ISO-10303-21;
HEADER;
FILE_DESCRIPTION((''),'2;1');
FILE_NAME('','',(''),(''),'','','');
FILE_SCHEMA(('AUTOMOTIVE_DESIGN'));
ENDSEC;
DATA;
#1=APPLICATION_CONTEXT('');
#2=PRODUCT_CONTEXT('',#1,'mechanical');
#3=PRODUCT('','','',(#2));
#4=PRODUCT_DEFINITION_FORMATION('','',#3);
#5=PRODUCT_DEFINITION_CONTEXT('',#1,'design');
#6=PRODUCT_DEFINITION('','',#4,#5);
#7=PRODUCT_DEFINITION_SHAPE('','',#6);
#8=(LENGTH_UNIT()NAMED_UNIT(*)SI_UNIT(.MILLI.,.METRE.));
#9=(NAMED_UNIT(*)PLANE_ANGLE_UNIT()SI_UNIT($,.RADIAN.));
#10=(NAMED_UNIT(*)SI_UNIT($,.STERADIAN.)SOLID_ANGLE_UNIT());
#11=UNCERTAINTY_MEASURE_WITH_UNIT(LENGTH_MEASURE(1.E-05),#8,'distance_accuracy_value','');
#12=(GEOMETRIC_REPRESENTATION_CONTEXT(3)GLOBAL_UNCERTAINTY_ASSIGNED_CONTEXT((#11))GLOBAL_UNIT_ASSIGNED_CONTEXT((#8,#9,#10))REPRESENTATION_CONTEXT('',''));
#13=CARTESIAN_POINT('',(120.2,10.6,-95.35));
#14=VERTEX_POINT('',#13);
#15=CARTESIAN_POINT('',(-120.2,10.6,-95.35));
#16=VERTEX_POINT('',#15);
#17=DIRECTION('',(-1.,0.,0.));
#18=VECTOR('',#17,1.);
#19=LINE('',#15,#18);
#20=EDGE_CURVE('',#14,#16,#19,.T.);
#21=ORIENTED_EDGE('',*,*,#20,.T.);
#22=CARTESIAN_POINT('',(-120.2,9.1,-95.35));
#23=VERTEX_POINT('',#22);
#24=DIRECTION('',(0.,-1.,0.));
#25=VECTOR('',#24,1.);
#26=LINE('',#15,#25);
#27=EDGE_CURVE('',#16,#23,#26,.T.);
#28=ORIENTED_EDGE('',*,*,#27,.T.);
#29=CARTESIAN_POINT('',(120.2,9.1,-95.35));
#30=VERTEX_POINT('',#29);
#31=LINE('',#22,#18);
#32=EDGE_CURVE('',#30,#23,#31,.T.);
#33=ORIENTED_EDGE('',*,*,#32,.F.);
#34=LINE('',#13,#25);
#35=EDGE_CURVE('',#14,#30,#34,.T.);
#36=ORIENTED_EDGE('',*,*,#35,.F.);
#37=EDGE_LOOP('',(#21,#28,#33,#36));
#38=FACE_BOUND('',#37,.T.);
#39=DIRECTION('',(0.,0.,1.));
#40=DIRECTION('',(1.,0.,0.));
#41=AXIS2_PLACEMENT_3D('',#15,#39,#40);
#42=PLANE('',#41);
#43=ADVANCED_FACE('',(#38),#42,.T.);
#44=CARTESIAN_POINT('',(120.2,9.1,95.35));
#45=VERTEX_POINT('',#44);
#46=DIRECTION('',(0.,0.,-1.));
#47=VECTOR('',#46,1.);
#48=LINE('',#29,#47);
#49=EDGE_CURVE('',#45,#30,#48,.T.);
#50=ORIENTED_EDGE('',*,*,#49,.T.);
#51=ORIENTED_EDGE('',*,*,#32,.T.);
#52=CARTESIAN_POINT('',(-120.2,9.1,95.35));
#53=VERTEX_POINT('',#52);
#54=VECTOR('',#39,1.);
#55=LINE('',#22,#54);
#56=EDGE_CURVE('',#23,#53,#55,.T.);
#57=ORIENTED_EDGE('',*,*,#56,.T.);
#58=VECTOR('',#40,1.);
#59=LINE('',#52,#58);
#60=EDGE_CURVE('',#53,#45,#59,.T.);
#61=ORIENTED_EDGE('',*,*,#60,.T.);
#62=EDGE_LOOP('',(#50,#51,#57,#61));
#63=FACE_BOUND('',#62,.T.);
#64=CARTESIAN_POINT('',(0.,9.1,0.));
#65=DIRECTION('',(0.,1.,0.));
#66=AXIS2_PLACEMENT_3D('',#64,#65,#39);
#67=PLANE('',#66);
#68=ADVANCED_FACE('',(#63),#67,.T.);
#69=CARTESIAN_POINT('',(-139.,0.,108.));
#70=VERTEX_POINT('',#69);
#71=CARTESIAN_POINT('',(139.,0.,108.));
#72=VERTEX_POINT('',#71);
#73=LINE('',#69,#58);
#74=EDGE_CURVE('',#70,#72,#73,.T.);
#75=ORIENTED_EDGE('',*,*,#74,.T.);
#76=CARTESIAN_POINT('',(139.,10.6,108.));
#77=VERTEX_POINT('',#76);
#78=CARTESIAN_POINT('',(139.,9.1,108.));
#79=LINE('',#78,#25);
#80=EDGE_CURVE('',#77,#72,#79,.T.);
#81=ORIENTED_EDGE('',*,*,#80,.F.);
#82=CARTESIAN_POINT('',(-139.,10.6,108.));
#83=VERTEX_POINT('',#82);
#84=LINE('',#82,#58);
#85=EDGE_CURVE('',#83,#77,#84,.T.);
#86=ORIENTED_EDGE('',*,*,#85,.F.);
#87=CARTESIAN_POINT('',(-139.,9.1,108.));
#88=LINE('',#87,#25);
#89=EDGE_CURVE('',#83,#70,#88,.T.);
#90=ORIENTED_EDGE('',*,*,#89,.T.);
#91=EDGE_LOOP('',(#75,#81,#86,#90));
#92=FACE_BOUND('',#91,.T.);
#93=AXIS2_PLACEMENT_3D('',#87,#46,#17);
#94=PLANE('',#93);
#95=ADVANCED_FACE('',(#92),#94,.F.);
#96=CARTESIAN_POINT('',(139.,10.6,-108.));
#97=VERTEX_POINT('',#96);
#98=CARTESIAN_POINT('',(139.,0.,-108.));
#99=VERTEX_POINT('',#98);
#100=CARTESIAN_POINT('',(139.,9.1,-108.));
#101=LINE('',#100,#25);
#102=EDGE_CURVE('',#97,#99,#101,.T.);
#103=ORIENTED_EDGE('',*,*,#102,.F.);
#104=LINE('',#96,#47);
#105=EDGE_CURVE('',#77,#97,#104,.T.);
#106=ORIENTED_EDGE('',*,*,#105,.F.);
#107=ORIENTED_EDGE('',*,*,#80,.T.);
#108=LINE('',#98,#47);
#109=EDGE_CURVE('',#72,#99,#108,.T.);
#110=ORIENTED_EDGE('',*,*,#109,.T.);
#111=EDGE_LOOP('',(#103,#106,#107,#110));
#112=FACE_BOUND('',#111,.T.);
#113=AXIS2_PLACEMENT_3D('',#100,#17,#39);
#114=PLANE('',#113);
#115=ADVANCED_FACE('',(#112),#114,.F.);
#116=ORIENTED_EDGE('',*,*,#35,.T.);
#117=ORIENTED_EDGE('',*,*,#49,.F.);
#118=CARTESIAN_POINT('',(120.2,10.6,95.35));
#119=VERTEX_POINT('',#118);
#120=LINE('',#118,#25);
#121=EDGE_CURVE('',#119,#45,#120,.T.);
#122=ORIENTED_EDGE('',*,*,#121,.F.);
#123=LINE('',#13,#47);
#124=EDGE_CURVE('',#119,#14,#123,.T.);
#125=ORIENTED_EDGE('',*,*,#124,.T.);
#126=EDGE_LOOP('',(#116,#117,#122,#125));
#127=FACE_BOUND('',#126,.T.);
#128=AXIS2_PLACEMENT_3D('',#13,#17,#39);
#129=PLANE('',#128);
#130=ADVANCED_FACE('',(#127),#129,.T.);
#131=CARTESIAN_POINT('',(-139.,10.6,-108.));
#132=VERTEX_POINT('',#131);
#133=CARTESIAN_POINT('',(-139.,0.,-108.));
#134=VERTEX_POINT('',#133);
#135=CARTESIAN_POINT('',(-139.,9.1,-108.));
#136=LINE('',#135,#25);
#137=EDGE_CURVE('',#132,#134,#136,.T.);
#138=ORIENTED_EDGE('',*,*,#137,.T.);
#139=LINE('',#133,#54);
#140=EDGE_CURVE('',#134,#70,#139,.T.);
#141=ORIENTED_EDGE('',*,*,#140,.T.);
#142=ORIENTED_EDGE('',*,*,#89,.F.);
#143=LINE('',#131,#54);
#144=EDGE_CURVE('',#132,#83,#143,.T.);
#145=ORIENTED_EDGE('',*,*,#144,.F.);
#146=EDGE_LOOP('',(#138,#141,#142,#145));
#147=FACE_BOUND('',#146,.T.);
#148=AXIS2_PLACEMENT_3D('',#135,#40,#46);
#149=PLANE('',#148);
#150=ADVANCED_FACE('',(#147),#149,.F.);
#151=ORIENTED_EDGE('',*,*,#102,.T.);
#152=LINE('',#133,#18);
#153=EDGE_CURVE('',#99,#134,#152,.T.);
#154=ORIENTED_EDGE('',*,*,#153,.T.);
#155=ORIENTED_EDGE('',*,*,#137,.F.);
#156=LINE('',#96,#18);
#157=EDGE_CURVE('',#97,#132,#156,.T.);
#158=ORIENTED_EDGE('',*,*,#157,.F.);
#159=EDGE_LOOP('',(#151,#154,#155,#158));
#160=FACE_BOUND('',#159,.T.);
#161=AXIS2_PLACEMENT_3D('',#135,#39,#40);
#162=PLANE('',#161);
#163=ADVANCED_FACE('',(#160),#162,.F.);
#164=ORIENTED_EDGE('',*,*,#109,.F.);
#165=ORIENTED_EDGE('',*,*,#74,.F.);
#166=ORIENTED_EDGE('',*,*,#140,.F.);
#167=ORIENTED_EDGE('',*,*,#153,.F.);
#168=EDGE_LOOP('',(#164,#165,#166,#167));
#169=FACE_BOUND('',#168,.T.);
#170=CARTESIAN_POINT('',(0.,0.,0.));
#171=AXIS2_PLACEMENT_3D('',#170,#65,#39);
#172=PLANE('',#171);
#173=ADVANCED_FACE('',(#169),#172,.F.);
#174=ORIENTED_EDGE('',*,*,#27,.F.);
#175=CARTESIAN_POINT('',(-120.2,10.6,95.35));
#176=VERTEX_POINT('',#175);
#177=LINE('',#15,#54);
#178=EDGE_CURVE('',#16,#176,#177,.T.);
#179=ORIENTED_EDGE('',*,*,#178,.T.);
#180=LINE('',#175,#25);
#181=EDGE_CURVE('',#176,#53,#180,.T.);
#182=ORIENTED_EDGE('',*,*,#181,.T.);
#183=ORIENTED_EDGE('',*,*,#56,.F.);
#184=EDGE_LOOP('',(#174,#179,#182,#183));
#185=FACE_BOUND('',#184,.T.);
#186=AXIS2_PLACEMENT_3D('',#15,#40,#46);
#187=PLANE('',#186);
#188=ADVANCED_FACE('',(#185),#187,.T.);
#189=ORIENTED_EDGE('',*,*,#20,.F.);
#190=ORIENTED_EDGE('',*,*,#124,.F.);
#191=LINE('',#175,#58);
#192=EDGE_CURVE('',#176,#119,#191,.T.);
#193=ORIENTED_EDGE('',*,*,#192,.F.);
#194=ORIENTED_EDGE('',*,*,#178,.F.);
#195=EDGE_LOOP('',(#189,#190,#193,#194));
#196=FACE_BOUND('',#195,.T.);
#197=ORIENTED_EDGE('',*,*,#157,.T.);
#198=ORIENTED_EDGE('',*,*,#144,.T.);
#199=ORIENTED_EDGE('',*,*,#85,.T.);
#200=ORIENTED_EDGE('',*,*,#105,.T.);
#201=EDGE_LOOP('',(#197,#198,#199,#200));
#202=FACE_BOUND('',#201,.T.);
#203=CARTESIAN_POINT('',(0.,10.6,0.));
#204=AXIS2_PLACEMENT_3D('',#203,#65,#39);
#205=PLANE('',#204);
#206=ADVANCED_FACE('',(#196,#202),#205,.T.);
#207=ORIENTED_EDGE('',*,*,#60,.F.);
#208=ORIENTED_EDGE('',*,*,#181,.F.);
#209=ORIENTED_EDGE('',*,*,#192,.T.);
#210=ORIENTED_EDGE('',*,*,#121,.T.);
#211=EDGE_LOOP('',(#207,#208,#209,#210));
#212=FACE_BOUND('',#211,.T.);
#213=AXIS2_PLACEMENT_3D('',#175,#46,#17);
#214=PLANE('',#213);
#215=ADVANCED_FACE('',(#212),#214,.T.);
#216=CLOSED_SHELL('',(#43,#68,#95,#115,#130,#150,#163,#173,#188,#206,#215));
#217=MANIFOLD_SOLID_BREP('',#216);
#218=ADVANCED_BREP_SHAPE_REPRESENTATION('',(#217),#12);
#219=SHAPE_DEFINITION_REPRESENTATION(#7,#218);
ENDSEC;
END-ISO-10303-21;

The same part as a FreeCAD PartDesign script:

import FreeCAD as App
import Part
import Sketcher
Q = App.Units.Quantity

doc = App.newDocument("Part")
body = doc.addObject("PartDesign::Body", "Body")

sketch1 = body.newObject("Sketcher::SketchObject", "Sketch")
sketch1.AttachmentSupport = (doc.getObject("XZ_Plane"), [""])
sketch1.MapMode = "FlatFace"
sketch1.addGeometry([
    Part.LineSegment(App.Vector(-139, -108, 0), App.Vector(-139, 108, 0)),
    Part.LineSegment(App.Vector(-139, 108, 0), App.Vector(139, 108, 0)),
    Part.LineSegment(App.Vector(139, 108, 0), App.Vector(139, -108, 0)),
    Part.LineSegment(App.Vector(139, -108, 0), App.Vector(-139, -108, 0)),
], False)
sketch1.addConstraint([
    Sketcher.Constraint("Coincident", 0, 2, 1, 1),
    Sketcher.Constraint("Coincident", 1, 2, 2, 1),
    Sketcher.Constraint("Coincident", 2, 2, 3, 1),
    Sketcher.Constraint("Coincident", 3, 2, 0, 1),
    Sketcher.Constraint("Vertical", 0),
    Sketcher.Constraint("Horizontal", 1),
    Sketcher.Constraint("Vertical", 2),
    Sketcher.Constraint("Horizontal", 3),
    Sketcher.Constraint("Symmetric", 0, 2, 2, 2, -1, 1),
    Sketcher.Constraint("DistanceX", 1, 1, 1, 2, Q("278 mm")),
    Sketcher.Constraint("DistanceY", 0, 1, 0, 2, Q("216 mm")),
])
pad1 = body.newObject("PartDesign::Pad", "Pad")
pad1.Profile = sketch1
pad1.Length = 9.1
pad1.Reversed = True

sketch2 = body.newObject("Sketcher::SketchObject", "Sketch001")
sketch2.AttachmentSupport = (doc.getObject("XZ_Plane"), [""])
sketch2.MapMode = "FlatFace"
sketch2.AttachmentOffset = App.Placement(App.Vector(0, 0, -9.1), App.Rotation())
sketch2.addGeometry([
    Part.LineSegment(App.Vector(139, -108, 0), App.Vector(-139, -108, 0)),
    Part.LineSegment(App.Vector(-139, -108, 0), App.Vector(-139, 108, 0)),
    Part.LineSegment(App.Vector(-139, 108, 0), App.Vector(139, 108, 0)),
    Part.LineSegment(App.Vector(139, 108, 0), App.Vector(139, -108, 0)),
    Part.LineSegment(App.Vector(-120, 95, 0), App.Vector(-120, -95, 0)),
    Part.LineSegment(App.Vector(-120, -95, 0), App.Vector(120, -95, 0)),
    Part.LineSegment(App.Vector(120, -95, 0), App.Vector(120, 95, 0)),
    Part.LineSegment(App.Vector(120, 95, 0), App.Vector(-120, 95, 0)),
], False)
sketch2.addConstraint([
    Sketcher.Constraint("Coincident", 0, 2, 1, 1),
    Sketcher.Constraint("Coincident", 1, 2, 2, 1),
    Sketcher.Constraint("Coincident", 2, 2, 3, 1),
    Sketcher.Constraint("Coincident", 3, 2, 0, 1),
    Sketcher.Constraint("Coincident", 4, 2, 5, 1),
    Sketcher.Constraint("Coincident", 5, 2, 6, 1),
    Sketcher.Constraint("Coincident", 6, 2, 7, 1),
    Sketcher.Constraint("Coincident", 7, 2, 4, 1),
    Sketcher.Constraint("Horizontal", 0),
    Sketcher.Constraint("Vertical", 1),
    Sketcher.Constraint("Horizontal", 2),
    Sketcher.Constraint("Vertical", 3),
    Sketcher.Constraint("Vertical", 4),
    Sketcher.Constraint("Horizontal", 5),
    Sketcher.Constraint("Vertical", 6),
    Sketcher.Constraint("Horizontal", 7),
    Sketcher.Constraint("Symmetric", 0, 2, 2, 2, -1, 1),
    Sketcher.Constraint("Symmetric", 4, 2, 6, 2, -1, 1),
    Sketcher.Constraint("DistanceX", 0, 2, 0, 1, Q("278 mm")),
    Sketcher.Constraint("DistanceY", 1, 1, 1, 2, Q("216 mm")),
    Sketcher.Constraint("DistanceX", 5, 1, 5, 2, Q("240.4 mm")),
    Sketcher.Constraint("DistanceY", 4, 2, 4, 1, Q("190.7 mm")),
])
pad2 = body.newObject("PartDesign::Pad", "Pad001")
pad2.Profile = sketch2
pad2.Length = 1.5
pad2.Reversed = True

doc.recompute()
